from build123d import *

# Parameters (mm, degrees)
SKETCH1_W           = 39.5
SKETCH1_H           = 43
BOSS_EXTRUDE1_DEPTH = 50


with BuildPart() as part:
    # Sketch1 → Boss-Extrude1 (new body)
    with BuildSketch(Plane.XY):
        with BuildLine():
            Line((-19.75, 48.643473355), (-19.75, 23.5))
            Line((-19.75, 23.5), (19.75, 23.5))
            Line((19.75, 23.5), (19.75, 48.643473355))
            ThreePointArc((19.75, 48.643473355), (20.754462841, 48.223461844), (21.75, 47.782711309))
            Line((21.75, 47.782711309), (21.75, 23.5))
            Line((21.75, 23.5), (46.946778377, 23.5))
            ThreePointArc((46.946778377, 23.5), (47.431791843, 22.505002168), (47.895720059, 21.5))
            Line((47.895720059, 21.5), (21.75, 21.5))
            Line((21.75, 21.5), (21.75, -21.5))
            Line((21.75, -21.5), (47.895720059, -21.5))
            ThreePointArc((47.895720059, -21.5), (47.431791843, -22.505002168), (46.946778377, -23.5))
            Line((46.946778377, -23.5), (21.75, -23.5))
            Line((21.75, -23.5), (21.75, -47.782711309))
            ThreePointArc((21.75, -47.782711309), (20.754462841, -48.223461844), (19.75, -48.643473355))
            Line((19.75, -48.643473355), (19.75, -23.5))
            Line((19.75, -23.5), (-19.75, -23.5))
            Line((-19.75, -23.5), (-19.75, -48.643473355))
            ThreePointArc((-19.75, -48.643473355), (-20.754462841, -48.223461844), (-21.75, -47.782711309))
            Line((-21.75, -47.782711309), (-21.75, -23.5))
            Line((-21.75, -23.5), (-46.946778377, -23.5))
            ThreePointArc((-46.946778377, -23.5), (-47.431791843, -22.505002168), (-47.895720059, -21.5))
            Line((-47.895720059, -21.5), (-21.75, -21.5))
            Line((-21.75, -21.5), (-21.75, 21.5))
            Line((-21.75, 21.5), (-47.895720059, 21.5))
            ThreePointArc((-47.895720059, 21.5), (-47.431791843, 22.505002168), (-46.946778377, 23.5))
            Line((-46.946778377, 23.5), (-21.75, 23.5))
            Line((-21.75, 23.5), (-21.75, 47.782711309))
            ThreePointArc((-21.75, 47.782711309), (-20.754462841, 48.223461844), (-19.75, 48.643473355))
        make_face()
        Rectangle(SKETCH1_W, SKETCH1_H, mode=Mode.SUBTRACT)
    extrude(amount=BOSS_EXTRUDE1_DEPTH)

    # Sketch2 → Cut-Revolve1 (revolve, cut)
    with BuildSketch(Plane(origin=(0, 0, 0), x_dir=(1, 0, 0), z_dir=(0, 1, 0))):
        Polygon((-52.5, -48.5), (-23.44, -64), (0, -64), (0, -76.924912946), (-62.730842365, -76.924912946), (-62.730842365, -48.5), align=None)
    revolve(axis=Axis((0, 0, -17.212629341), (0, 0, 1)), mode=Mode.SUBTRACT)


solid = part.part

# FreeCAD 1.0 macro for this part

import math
import FreeCAD as App
import Part
import Sketcher
from FreeCAD import Vector

doc = App.newDocument("Part")
body = doc.addObject("PartDesign::Body", "Body")

# Sketch on XY plane
sketch1 = body.newObject("Sketcher::SketchObject", "Sketch")
sketch1.AttachmentSupport = (doc.getObject("XY_Plane"), [""])
sketch1.MapMode = "FlatFace"
sketch1.addGeometry(Part.LineSegment(Vector(-19.8, 23.5, 0), Vector(-19.8, 48.6, 0)), False)
sketch1.addGeometry(Part.ArcOfCircle(Part.Circle(Vector(0, 0, 0), Vector(0, 0, 1), 52.5), math.radians(112.1), math.radians(114.47)), False)
sketch1.addGeometry(Part.LineSegment(Vector(-21.8, 47.8, 0), Vector(-21.8, 23.5, 0)), False)
sketch1.addGeometry(Part.LineSegment(Vector(-21.8, 23.5, 0), Vector(-46.9, 23.5, 0)), False)
sketch1.addGeometry(Part.ArcOfCircle(Part.Circle(Vector(0, 0, 0), Vector(0, 0, 1), 52.5), math.radians(153.41), math.radians(155.83)), False)
sketch1.addGeometry(Part.LineSegment(Vector(-47.9, 21.5, 0), Vector(-21.8, 21.5, 0)), False)
sketch1.addGeometry(Part.LineSegment(Vector(-21.8, 21.5, 0), Vector(-21.8, -21.5, 0)), False)
sketch1.addGeometry(Part.LineSegment(Vector(-21.8, -21.5, 0), Vector(-47.9, -21.5, 0)), False)
sketch1.addGeometry(Part.ArcOfCircle(Part.Circle(Vector(0, 0, 0), Vector(0, 0, 1), 52.5), math.radians(-155.83), math.radians(-153.41)), False)
sketch1.addGeometry(Part.LineSegment(Vector(-46.9, -23.5, 0), Vector(-21.8, -23.5, 0)), False)
sketch1.addGeometry(Part.LineSegment(Vector(-21.8, -23.5, 0), Vector(-21.8, -47.8, 0)), False)
sketch1.addGeometry(Part.ArcOfCircle(Part.Circle(Vector(0, 0, 0), Vector(0, 0, 1), 52.5), math.radians(-114.47), math.radians(-112.1)), False)
sketch1.addGeometry(Part.LineSegment(Vector(-19.8, -48.6, 0), Vector(-19.8, -23.5, 0)), False)
sketch1.addGeometry(Part.LineSegment(Vector(-19.8, -23.5, 0), Vector(19.8, -23.5, 0)), False)
sketch1.addGeometry(Part.LineSegment(Vector(19.8, -23.5, 0), Vector(19.8, -48.6, 0)), False)
sketch1.addGeometry(Part.ArcOfCircle(Part.Circle(Vector(0, 0, 0), Vector(0, 0, 1), 52.5), math.radians(-67.9), math.radians(-65.53)), False)
sketch1.addGeometry(Part.LineSegment(Vector(21.8, -47.8, 0), Vector(21.8, -23.5, 0)), False)
sketch1.addGeometry(Part.LineSegment(Vector(21.8, -23.5, 0), Vector(46.9, -23.5, 0)), False)
sketch1.addGeometry(Part.ArcOfCircle(Part.Circle(Vector(0, 0, 0), Vector(0, 0, 1), 52.5), math.radians(-26.59), math.radians(-24.17)), False)
sketch1.addGeometry(Part.LineSegment(Vector(47.9, -21.5, 0), Vector(21.8, -21.5, 0)), False)
sketch1.addGeometry(Part.LineSegment(Vector(21.8, -21.5, 0), Vector(21.8, 21.5, 0)), False)
sketch1.addGeometry(Part.LineSegment(Vector(21.8, 21.5, 0), Vector(47.9, 21.5, 0)), False)
sketch1.addGeometry(Part.ArcOfCircle(Part.Circle(Vector(0, 0, 0), Vector(0, 0, 1), 52.5), math.radians(24.17), math.radians(26.59)), False)
sketch1.addGeometry(Part.LineSegment(Vector(46.9, 23.5, 0), Vector(21.8, 23.5, 0)), False)
sketch1.addGeometry(Part.LineSegment(Vector(21.8, 23.5, 0), Vector(21.8, 47.8, 0)), False)
sketch1.addGeometry(Part.ArcOfCircle(Part.Circle(Vector(0, 0, 0), Vector(0, 0, 1), 52.5), math.radians(65.53), math.radians(67.9)), False)
sketch1.addGeometry(Part.LineSegment(Vector(19.8, 48.6, 0), Vector(19.8, 23.5, 0)), False)
sketch1.addGeometry(Part.LineSegment(Vector(19.8, 23.5, 0), Vector(-19.8, 23.5, 0)), False)
sketch1.addGeometry(Part.LineSegment(Vector(-19.8, -21.5, 0), Vector(-19.8, 21.5, 0)), False)
sketch1.addGeometry(Part.LineSegment(Vector(-19.8, 21.5, 0), Vector(19.8, 21.5, 0)), False)
sketch1.addGeometry(Part.LineSegment(Vector(19.8, 21.5, 0), Vector(19.8, -21.5, 0)), False)
sketch1.addGeometry(Part.LineSegment(Vector(19.8, -21.5, 0), Vector(-19.8, -21.5, 0)), False)
sketch1.addConstraint(Sketcher.Constraint("Coincident", 0, 2, 1, 1))
sketch1.addConstraint(Sketcher.Constraint("Coincident", 1, 2, 2, 1))
sketch1.addConstraint(Sketcher.Constraint("Coincident", 2, 2, 3, 1))
sketch1.addConstraint(Sketcher.Constraint("Coincident", 3, 2, 4, 1))
sketch1.addConstraint(Sketcher.Constraint("Coincident", 4, 2, 5, 1))
sketch1.addConstraint(Sketcher.Constraint("Coincident", 5, 2, 6, 1))
sketch1.addConstraint(Sketcher.Constraint("Coincident", 6, 2, 7, 1))
sketch1.addConstraint(Sketcher.Constraint("Coincident", 7, 2, 8, 1))
sketch1.addConstraint(Sketcher.Constraint("Coincident", 8, 2, 9, 1))
sketch1.addConstraint(Sketcher.Constraint("Coincident", 9, 2, 10, 1))
sketch1.addConstraint(Sketcher.Constraint("Coincident", 10, 2, 11, 1))
sketch1.addConstraint(Sketcher.Constraint("Coincident", 11, 2, 12, 1))
sketch1.addConstraint(Sketcher.Constraint("Coincident", 12, 2, 13, 1))
sketch1.addConstraint(Sketcher.Constraint("Coincident", 13, 2, 14, 1))
sketch1.addConstraint(Sketcher.Constraint("Coincident", 14, 2, 15, 1))
sketch1.addConstraint(Sketcher.Constraint("Coincident", 15, 2, 16, 1))
sketch1.addConstraint(Sketcher.Constraint("Coincident", 16, 2, 17, 1))
sketch1.addConstraint(Sketcher.Constraint("Coincident", 17, 2, 18, 1))
sketch1.addConstraint(Sketcher.Constraint("Coincident", 18, 2, 19, 1))
sketch1.addConstraint(Sketcher.Constraint("Coincident", 19, 2, 20, 1))
sketch1.addConstraint(Sketcher.Constraint("Coincident", 20, 2, 21, 1))
sketch1.addConstraint(Sketcher.Constraint("Coincident", 21, 2, 22, 1))
sketch1.addConstraint(Sketcher.Constraint("Coincident", 22, 2, 23, 1))
sketch1.addConstraint(Sketcher.Constraint("Coincident", 23, 2, 24, 1))
sketch1.addConstraint(Sketcher.Constraint("Coincident", 24, 2, 25, 1))
sketch1.addConstraint(Sketcher.Constraint("Coincident", 25, 2, 26, 1))
sketch1.addConstraint(Sketcher.Constraint("Coincident", 26, 2, 27, 1))
sketch1.addConstraint(Sketcher.Constraint("Coincident", 27, 2, 0, 1))
sketch1.addConstraint(Sketcher.Constraint("Coincident", 28, 2, 29, 1))
sketch1.addConstraint(Sketcher.Constraint("Coincident", 29, 2, 30, 1))
sketch1.addConstraint(Sketcher.Constraint("Coincident", 30, 2, 31, 1))
sketch1.addConstraint(Sketcher.Constraint("Coincident", 31, 2, 28, 1))
sketch1.addConstraint(Sketcher.Constraint("Vertical", 0))
sketch1.addConstraint(Sketcher.Constraint("Vertical", 2))
sketch1.addConstraint(Sketcher.Constraint("Horizontal", 3))
sketch1.addConstraint(Sketcher.Constraint("Horizontal", 5))
sketch1.addConstraint(Sketcher.Constraint("Vertical", 6))
sketch1.addConstraint(Sketcher.Constraint("Horizontal", 7))
sketch1.addConstraint(Sketcher.Constraint("Horizontal", 9))
sketch1.addConstraint(Sketcher.Constraint("Vertical", 10))
sketch1.addConstraint(Sketcher.Constraint("Vertical", 12))
sketch1.addConstraint(Sketcher.Constraint("Horizontal", 13))
sketch1.addConstraint(Sketcher.Constraint("Vertical", 14))
sketch1.addConstraint(Sketcher.Constraint("Vertical", 16))
sketch1.addConstraint(Sketcher.Constraint("Horizontal", 17))
sketch1.addConstraint(Sketcher.Constraint("Horizontal", 19))
sketch1.addConstraint(Sketcher.Constraint("Vertical", 20))
sketch1.addConstraint(Sketcher.Constraint("Horizontal", 21))
sketch1.addConstraint(Sketcher.Constraint("Horizontal", 23))
sketch1.addConstraint(Sketcher.Constraint("Vertical", 24))
sketch1.addConstraint(Sketcher.Constraint("Vertical", 26))
sketch1.addConstraint(Sketcher.Constraint("Horizontal", 27))
sketch1.addConstraint(Sketcher.Constraint("Vertical", 28))
sketch1.addConstraint(Sketcher.Constraint("Horizontal", 29))
sketch1.addConstraint(Sketcher.Constraint("Vertical", 30))
sketch1.addConstraint(Sketcher.Constraint("Horizontal", 31))
sketch1.addConstraint(Sketcher.Constraint("Coincident", 1, 3, -1, 1))
sketch1.addConstraint(Sketcher.Constraint("Coincident", 4, 3, -1, 1))
sketch1.addConstraint(Sketcher.Constraint("Coincident", 8, 3, -1, 1))
sketch1.addConstraint(Sketcher.Constraint("Coincident", 11, 3, -1, 1))
sketch1.addConstraint(Sketcher.Constraint("Coincident", 15, 3, -1, 1))
sketch1.addConstraint(Sketcher.Constraint("Coincident", 18, 3, -1, 1))
sketch1.addConstraint(Sketcher.Constraint("Coincident", 22, 3, -1, 1))
sketch1.addConstraint(Sketcher.Constraint("Coincident", 25, 3, -1, 1))
sketch1.addConstraint(Sketcher.Constraint("Equal", 1, 4))
sketch1.addConstraint(Sketcher.Constraint("Equal", 4, 8))
sketch1.addConstraint(Sketcher.Constraint("Equal", 8, 11))
sketch1.addConstraint(Sketcher.Constraint("Equal", 11, 15))
sketch1.addConstraint(Sketcher.Constraint("Equal", 15, 18))
sketch1.addConstraint(Sketcher.Constraint("Equal", 18, 22))
sketch1.addConstraint(Sketcher.Constraint("Equal", 22, 25))
sketch1.addConstraint(Sketcher.Constraint("Symmetric", 2, 2, 16, 2, -1, 1))
sketch1.addConstraint(Sketcher.Constraint("Symmetric", 5, 2, 19, 2, -1, 1))
sketch1.addConstraint(Sketcher.Constraint("Symmetric", 9, 2, 23, 2, -1, 1))
sketch1.addConstraint(Sketcher.Constraint("Symmetric", 12, 2, 26, 2, -1, 1))
sketch1.addConstraint(Sketcher.Constraint("Symmetric", 28, 2, 30, 2, -1, 1))
sketch1.addConstraint(Sketcher.Constraint("Symmetric", 9, 2, 16, 2, -2))
sketch1.addConstraint(Sketcher.Constraint("Horizontal", 9, 2, 12, 2))
sketch1.addConstraint(Sketcher.Constraint("Horizontal", 11, 2, 14, 2))
sketch1.addConstraint(Sketcher.Constraint("Horizontal", 7, 2, 18, 2))
sketch1.addConstraint(Sketcher.Constraint("Horizontal", 5, 2, 20, 2))
sketch1.addConstraint(Sketcher.Constraint("Horizontal", 0, 2, 25, 2))
sketch1.addConstraint(Sketcher.Constraint("Horizontal", 21, 2, 28, 2))
sketch1.addConstraint(Sketcher.Constraint("Vertical", 2, 2, 5, 2))
sketch1.addConstraint(Sketcher.Constraint("Vertical", 27, 2, 28, 2))
sketch1.addConstraint(Sketcher.Constraint("Radius", 1, 52.5))
sketch1.addConstraint(Sketcher.Constraint("DistanceY", 6, 2, 6, 1, 43.0))
sketch1.addConstraint(Sketcher.Constraint("DistanceX", 13, 1, 13, 2, 39.5))
sketch1.addConstraint(Sketcher.Constraint("DistanceX", 1, 2, 0, 2, 2.0))
sketch1.addConstraint(Sketcher.Constraint("DistanceY", 4, 2, 3, 2, 2.0))
pad1 = body.newObject("PartDesign::Pad", "Pad")
pad1.Profile = sketch1
pad1.Length = 50

# Sketch on XZ plane
sketch2 = body.newObject("Sketcher::SketchObject", "Sketch001")
sketch2.AttachmentSupport = (doc.getObject("XZ_Plane"), [""])
sketch2.MapMode = "FlatFace"
sketch2.addGeometry(Part.LineSegment(Vector(-23, 64, 0), Vector(-52, 48, 0)), False)
sketch2.addGeometry(Part.LineSegment(Vector(-52, 48, 0), Vector(-63, 48, 0)), False)
sketch2.addGeometry(Part.LineSegment(Vector(-63, 48, 0), Vector(-63, 77, 0)), False)
sketch2.addGeometry(Part.LineSegment(Vector(-63, 77, 0), Vector(0, 77, 0)), False)
sketch2.addGeometry(Part.LineSegment(Vector(0, 77, 0), Vector(0, 64, 0)), False)
sketch2.addGeometry(Part.LineSegment(Vector(0, 64, 0), Vector(-23, 64, 0)), False)
sketch2.addConstraint(Sketcher.Constraint("Coincident", 0, 2, 1, 1))
sketch2.addConstraint(Sketcher.Constraint("Coincident", 1, 2, 2, 1))
sketch2.addConstraint(Sketcher.Constraint("Coincident", 2, 2, 3, 1))
sketch2.addConstraint(Sketcher.Constraint("Coincident", 3, 2, 4, 1))
sketch2.addConstraint(Sketcher.Constraint("Coincident", 4, 2, 5, 1))
sketch2.addConstraint(Sketcher.Constraint("Coincident", 5, 2, 0, 1))
sketch2.addConstraint(Sketcher.Constraint("Horizontal", 1))
sketch2.addConstraint(Sketcher.Constraint("Vertical", 2))
sketch2.addConstraint(Sketcher.Constraint("Horizontal", 3))
sketch2.addConstraint(Sketcher.Constraint("Vertical", 4))
sketch2.addConstraint(Sketcher.Constraint("Horizontal", 5))
sketch2.addConstraint(Sketcher.Constraint("PointOnObject", 3, 2, -2))
sketch2.addConstraint(Sketcher.Constraint("DistanceY", -1, 1, 4, 2, 64.0))
sketch2.addConstraint(Sketcher.Constraint("DistanceX", 5, 2, 5, 1, 23.44))
sketch2.addConstraint(Sketcher.Constraint("DistanceX", 0, 2, -1, 1, 52.5))
sketch2.addConstraint(Sketcher.Constraint("DistanceY", -1, 1, 0, 2, 48.5))
sketch2.addConstraint(Sketcher.Constraint("DistanceX", 1, 2, 1, 1, 10.230842))
sketch2.addConstraint(Sketcher.Constraint("DistanceY", 2, 1, 2, 2, 28.424913))
groove = body.newObject("PartDesign::Groove", "Groove")
groove.Profile = sketch2
groove.ReferenceAxis = (sketch2, ["V_Axis"])
groove.Angle = 360

doc.recompute()
